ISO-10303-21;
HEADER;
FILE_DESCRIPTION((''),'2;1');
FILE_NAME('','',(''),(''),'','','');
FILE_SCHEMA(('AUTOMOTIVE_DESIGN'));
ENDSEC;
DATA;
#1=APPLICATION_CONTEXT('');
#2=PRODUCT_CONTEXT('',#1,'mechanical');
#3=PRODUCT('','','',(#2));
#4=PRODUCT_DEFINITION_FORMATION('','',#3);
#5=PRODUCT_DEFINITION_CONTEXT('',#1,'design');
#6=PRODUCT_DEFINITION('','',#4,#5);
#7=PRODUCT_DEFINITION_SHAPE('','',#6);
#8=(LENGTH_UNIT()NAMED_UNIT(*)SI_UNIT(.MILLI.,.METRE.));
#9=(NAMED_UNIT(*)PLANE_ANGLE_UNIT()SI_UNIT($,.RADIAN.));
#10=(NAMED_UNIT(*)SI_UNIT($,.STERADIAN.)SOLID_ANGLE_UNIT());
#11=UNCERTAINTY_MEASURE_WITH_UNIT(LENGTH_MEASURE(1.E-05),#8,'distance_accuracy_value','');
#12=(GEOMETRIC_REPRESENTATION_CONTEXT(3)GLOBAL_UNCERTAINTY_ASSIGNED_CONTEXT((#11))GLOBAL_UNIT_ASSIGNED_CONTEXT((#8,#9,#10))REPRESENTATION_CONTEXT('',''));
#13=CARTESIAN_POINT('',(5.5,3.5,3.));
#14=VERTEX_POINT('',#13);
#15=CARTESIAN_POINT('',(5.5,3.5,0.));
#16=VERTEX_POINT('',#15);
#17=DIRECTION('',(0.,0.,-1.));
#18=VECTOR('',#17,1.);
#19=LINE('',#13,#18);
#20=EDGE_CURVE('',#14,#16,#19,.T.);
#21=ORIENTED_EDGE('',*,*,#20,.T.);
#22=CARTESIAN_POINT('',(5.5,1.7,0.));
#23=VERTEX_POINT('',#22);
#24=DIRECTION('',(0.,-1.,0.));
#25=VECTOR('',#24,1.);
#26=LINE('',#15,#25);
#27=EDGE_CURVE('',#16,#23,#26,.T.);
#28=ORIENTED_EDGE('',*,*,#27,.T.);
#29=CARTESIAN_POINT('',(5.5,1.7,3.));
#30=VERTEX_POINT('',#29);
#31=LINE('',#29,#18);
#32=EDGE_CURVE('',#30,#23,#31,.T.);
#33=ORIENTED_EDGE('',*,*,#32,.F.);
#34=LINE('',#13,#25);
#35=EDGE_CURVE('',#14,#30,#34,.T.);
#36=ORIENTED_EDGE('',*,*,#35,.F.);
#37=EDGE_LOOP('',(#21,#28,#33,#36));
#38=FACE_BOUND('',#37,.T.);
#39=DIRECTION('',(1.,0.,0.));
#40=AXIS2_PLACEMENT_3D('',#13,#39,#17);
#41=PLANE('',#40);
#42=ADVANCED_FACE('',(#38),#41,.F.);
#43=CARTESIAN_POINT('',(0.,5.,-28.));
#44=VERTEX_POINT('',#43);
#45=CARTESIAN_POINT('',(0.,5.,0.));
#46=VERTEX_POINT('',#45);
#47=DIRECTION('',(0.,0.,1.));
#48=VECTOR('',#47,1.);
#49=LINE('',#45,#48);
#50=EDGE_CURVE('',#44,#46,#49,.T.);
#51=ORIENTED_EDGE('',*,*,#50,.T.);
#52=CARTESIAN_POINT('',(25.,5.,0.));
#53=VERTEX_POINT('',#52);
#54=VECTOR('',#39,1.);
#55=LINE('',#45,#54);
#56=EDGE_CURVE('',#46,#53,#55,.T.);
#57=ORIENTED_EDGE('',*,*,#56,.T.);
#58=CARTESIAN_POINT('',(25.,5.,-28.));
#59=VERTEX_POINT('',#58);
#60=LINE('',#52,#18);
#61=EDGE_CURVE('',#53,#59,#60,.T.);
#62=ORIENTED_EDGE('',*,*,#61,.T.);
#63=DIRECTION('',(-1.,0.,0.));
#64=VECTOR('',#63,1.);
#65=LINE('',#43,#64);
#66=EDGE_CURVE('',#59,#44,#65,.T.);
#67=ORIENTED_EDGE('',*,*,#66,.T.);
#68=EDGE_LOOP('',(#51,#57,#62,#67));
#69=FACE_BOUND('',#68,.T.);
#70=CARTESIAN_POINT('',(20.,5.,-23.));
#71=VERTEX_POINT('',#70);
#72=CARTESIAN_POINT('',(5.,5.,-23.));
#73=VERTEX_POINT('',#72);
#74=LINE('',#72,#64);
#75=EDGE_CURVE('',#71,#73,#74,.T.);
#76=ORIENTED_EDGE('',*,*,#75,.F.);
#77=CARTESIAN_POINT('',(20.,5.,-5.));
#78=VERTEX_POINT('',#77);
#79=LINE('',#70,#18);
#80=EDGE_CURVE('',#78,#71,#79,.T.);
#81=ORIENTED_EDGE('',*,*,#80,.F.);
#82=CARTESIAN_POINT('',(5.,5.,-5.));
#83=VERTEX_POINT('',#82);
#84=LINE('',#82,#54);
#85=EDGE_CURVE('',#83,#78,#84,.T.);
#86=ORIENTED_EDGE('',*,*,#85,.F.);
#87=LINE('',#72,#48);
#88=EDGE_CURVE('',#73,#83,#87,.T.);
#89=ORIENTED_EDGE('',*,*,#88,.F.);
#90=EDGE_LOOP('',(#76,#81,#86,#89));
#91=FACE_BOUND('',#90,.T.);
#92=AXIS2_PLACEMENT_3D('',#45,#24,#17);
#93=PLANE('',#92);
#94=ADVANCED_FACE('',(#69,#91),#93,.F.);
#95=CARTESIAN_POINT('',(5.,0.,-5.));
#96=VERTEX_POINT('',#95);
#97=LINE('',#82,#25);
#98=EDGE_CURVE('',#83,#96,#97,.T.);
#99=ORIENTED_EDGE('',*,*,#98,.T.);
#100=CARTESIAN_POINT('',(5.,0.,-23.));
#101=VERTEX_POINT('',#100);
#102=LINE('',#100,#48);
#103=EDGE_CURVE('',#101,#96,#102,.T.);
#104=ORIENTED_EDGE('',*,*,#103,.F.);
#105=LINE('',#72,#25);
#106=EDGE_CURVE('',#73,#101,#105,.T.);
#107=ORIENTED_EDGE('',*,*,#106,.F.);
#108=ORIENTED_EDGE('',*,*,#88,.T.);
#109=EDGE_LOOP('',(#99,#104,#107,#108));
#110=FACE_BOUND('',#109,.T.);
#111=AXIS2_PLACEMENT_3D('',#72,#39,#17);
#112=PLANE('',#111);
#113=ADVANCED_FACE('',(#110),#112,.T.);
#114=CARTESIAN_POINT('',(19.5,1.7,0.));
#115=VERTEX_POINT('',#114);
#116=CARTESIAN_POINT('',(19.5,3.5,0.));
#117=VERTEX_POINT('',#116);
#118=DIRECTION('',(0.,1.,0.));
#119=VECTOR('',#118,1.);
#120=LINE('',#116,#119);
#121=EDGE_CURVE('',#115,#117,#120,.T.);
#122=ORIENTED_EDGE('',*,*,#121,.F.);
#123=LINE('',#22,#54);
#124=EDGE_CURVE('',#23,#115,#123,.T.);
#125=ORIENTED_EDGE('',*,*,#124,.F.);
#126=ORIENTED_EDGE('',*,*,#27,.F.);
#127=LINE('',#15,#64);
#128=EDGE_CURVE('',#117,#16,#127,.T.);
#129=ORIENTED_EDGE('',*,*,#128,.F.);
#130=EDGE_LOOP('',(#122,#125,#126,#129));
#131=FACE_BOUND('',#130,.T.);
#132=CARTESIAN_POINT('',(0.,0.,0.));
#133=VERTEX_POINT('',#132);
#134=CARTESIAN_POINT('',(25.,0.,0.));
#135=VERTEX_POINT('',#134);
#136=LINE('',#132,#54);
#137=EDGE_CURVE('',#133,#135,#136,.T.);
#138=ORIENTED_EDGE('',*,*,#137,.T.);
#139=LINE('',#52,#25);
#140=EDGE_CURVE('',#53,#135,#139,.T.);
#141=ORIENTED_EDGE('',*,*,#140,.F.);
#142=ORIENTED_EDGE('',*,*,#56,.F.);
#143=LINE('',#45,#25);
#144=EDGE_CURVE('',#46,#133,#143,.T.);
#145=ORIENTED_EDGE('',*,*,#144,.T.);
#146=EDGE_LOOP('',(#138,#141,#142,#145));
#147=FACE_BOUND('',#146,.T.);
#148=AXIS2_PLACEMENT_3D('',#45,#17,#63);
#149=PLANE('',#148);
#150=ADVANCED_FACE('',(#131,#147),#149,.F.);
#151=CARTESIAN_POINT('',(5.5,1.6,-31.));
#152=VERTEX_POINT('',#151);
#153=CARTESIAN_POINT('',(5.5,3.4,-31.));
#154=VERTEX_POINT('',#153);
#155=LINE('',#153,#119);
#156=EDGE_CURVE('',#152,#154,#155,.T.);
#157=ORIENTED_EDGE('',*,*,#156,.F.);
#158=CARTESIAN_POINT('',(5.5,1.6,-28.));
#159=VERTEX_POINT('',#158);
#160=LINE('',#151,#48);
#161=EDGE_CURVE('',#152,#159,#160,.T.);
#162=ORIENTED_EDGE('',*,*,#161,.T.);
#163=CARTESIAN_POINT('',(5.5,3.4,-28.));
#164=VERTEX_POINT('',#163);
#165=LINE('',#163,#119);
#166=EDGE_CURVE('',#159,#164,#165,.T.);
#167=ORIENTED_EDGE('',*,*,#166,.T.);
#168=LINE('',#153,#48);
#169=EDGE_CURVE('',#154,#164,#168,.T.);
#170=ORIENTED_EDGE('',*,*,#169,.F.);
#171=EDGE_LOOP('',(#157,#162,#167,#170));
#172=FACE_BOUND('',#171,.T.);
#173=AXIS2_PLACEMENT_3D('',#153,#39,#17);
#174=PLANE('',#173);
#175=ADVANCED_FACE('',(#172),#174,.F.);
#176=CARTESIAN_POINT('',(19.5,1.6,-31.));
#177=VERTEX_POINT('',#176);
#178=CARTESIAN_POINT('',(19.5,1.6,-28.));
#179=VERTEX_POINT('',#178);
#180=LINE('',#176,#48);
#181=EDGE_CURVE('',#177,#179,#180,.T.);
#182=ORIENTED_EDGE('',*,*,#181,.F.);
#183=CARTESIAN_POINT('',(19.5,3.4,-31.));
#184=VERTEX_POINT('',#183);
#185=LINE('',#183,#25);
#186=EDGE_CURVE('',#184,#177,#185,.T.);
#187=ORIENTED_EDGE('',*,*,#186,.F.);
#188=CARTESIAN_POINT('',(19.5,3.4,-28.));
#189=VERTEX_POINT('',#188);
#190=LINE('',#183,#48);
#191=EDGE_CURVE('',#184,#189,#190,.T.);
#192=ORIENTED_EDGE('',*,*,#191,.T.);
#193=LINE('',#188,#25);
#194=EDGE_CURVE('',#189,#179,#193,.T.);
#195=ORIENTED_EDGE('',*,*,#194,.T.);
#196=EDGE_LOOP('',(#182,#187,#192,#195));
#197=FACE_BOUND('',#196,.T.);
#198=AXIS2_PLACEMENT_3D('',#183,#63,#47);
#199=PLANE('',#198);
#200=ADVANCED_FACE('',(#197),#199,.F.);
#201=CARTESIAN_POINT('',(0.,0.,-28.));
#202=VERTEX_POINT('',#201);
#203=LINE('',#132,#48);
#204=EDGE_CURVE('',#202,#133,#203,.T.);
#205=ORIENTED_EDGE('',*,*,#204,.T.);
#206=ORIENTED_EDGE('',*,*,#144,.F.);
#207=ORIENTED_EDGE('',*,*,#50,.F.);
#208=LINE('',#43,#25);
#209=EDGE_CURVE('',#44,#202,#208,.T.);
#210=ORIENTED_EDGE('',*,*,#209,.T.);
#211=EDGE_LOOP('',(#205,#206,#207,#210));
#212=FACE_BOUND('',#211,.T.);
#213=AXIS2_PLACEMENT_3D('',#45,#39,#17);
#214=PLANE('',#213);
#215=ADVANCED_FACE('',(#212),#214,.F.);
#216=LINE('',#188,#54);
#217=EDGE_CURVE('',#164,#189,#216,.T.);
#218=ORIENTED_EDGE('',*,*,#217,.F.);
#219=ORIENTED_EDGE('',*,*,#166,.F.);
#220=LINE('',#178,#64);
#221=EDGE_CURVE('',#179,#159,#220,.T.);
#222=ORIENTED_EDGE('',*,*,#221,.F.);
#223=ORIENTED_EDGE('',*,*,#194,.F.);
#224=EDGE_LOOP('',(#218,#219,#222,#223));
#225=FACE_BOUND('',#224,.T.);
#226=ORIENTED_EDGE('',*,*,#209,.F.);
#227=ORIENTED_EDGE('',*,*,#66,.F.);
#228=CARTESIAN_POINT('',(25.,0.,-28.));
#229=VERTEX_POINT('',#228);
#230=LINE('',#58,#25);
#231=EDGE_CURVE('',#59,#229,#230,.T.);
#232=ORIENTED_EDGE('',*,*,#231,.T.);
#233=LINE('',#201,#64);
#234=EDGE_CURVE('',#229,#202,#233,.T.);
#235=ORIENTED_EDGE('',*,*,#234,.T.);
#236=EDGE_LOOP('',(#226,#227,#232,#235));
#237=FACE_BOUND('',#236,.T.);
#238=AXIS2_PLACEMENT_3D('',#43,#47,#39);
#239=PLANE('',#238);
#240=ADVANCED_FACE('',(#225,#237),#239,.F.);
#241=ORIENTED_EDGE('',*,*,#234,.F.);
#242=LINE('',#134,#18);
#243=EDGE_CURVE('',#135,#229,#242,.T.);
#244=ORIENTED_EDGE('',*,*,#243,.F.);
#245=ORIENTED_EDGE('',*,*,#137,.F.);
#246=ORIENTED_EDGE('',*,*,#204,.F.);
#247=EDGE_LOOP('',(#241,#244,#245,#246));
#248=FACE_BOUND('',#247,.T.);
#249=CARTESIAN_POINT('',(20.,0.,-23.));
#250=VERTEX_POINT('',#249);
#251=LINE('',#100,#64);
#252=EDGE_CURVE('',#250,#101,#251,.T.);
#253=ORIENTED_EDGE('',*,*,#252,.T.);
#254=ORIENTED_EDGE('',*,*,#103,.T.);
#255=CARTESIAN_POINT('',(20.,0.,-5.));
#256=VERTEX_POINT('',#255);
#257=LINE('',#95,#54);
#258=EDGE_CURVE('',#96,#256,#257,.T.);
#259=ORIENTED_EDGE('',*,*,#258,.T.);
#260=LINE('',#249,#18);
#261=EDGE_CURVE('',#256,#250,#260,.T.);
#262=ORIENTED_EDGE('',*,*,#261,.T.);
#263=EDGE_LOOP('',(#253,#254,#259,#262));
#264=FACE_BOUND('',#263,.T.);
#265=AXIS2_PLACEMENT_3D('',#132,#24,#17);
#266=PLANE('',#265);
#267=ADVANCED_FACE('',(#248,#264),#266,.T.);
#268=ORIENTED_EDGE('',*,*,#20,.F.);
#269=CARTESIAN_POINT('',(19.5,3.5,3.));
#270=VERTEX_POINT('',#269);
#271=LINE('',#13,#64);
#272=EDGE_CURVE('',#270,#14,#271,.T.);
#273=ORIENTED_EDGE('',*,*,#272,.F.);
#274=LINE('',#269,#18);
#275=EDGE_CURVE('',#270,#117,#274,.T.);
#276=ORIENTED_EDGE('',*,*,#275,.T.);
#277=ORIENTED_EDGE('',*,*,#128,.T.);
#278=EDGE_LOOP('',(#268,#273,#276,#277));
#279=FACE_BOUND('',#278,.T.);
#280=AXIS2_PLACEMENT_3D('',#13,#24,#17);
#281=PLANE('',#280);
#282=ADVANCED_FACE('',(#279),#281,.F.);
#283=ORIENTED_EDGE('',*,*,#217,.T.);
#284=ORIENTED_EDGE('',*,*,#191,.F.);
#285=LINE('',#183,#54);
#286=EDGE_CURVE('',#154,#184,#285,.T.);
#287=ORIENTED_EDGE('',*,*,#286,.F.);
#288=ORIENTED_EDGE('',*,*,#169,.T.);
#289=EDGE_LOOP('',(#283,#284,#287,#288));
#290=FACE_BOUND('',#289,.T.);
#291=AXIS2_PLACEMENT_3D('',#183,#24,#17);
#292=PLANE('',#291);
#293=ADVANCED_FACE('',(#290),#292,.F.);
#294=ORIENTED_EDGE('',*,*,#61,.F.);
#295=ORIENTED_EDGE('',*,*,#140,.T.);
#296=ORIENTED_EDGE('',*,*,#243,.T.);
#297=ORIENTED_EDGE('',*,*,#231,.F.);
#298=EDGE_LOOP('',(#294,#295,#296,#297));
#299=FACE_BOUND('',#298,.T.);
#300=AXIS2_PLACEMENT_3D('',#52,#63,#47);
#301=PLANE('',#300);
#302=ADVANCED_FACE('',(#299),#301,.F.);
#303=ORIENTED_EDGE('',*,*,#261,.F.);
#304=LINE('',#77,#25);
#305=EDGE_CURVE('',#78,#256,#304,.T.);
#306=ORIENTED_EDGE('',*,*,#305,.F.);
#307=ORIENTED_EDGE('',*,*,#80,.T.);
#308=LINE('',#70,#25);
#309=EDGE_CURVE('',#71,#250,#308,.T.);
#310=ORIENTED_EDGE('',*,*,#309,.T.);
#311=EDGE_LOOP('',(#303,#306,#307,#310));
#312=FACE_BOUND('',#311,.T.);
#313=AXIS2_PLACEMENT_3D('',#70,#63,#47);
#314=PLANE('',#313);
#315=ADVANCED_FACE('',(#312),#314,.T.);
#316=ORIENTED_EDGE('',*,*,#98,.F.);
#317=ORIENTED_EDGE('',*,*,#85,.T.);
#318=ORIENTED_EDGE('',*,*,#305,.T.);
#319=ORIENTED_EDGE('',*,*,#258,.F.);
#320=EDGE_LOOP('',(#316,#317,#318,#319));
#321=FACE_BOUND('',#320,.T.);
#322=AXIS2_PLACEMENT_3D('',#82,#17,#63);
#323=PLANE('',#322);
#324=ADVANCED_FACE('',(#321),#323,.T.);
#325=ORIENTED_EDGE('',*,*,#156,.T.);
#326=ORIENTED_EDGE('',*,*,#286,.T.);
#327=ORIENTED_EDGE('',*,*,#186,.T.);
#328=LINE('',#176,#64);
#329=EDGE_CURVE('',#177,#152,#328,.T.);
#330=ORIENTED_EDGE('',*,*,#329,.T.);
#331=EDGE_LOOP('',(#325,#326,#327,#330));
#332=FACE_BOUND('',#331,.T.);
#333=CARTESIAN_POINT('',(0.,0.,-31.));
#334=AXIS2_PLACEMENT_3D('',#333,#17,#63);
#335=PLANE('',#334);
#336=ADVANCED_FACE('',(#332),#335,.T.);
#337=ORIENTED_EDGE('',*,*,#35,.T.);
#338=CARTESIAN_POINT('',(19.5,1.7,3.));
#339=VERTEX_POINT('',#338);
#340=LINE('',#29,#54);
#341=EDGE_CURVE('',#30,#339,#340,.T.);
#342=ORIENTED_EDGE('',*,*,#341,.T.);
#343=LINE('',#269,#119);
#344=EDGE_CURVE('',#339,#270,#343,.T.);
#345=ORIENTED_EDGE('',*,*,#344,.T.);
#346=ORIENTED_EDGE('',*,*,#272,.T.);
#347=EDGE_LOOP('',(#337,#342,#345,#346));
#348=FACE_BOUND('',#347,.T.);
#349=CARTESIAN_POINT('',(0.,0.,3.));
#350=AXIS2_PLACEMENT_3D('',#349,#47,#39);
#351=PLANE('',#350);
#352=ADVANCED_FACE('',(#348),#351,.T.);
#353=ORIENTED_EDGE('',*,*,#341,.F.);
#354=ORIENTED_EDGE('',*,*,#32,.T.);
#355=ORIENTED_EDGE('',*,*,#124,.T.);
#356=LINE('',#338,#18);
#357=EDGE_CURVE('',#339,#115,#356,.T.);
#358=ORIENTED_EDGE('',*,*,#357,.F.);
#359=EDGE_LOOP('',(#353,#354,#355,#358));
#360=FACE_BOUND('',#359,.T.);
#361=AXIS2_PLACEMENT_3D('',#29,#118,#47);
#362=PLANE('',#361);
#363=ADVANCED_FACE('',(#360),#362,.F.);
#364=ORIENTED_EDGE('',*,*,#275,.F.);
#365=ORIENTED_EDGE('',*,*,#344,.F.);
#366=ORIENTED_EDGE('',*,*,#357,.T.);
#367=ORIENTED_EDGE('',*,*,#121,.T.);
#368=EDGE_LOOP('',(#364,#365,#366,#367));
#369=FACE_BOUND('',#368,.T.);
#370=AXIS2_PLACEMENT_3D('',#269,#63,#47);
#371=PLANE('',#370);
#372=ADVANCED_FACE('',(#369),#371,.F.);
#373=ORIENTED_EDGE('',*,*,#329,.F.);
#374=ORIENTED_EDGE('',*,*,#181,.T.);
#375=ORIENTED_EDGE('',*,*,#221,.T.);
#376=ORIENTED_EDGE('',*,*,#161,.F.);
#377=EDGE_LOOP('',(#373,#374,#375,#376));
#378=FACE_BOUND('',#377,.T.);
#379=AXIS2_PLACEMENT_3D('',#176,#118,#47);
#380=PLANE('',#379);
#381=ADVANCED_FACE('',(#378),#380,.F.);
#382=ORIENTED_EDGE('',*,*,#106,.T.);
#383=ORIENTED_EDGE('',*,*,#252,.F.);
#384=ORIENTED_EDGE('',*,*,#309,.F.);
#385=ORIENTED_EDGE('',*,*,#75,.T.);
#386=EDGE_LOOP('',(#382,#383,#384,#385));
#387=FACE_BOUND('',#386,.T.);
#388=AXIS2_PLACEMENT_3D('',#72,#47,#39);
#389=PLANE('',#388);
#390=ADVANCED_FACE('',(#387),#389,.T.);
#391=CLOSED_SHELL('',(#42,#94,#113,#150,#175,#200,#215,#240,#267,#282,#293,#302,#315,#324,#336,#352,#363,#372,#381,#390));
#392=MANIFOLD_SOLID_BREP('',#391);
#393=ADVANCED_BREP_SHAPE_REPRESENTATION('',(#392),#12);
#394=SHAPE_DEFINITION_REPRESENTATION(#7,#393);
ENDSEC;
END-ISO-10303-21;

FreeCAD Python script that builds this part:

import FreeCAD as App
import Part
import Sketcher

doc = App.newDocument("Part")
body = doc.addObject("PartDesign::Body", "Body")

sketch1 = body.newObject("Sketcher::SketchObject", "Sketch")
sketch1.AttachmentSupport = (doc.getObject("XZ_Plane"), [""])
sketch1.MapMode = "FlatFace"
sketch1.addGeometry([
    Part.LineSegment(App.Vector(0, -28, 0), App.Vector(0, 0, 0)),
    Part.LineSegment(App.Vector(0, 0, 0), App.Vector(25, 0, 0)),
    Part.LineSegment(App.Vector(25, 0, 0), App.Vector(25, -28, 0)),
    Part.LineSegment(App.Vector(25, -28, 0), App.Vector(0, -28, 0)),
    Part.LineSegment(App.Vector(20, -5, 0), App.Vector(5, -5, 0)),
    Part.LineSegment(App.Vector(5, -5, 0), App.Vector(5, -23, 0)),
    Part.LineSegment(App.Vector(5, -23, 0), App.Vector(20, -23, 0)),
    Part.LineSegment(App.Vector(20, -23, 0), App.Vector(20, -5, 0)),
], False)
sketch1.addConstraint([
    Sketcher.Constraint("Coincident", 0, 2, 1, 1),
    Sketcher.Constraint("Coincident", 1, 2, 2, 1),
    Sketcher.Constraint("Coincident", 2, 2, 3, 1),
    Sketcher.Constraint("Coincident", 3, 2, 0, 1),
    Sketcher.Constraint("Coincident", 4, 2, 5, 1),
    Sketcher.Constraint("Coincident", 5, 2, 6, 1),
    Sketcher.Constraint("Coincident", 6, 2, 7, 1),
    Sketcher.Constraint("Coincident", 7, 2, 4, 1),
    Sketcher.Constraint("Vertical", 0),
    Sketcher.Constraint("Horizontal", 1),
    Sketcher.Constraint("Vertical", 2),
    Sketcher.Constraint("Horizontal", 3),
    Sketcher.Constraint("Horizontal", 4),
    Sketcher.Constraint("Vertical", 5),
    Sketcher.Constraint("Horizontal", 6),
    Sketcher.Constraint("Vertical", 7),
    Sketcher.Constraint("Coincident", 0, 2, -1, 1),
    Sketcher.Constraint("DistanceX", 1, 1, 1, 2, 25.0),
    Sketcher.Constraint("DistanceX", 4, 2, 4, 1, 15.0),
    Sketcher.Constraint("DistanceY", 0, 1, 0, 2, 28.0),
    Sketcher.Constraint("DistanceY", 5, 2, 5, 1, 18.0),
    Sketcher.Constraint("DistanceX", -1, 1, 4, 2, 5.0),
    Sketcher.Constraint("DistanceY", 4, 2, -1, 1, 5.0),
])
pad1 = body.newObject("PartDesign::Pad", "Pad")
pad1.Profile = sketch1
pad1.Length = 5
pad1.Reversed = True

sketch2 = body.newObject("Sketcher::SketchObject", "Sketch001")
sketch2.AttachmentSupport = (doc.getObject("XY_Plane"), [""])
sketch2.MapMode = "FlatFace"
sketch2.addGeometry([
    Part.LineSegment(App.Vector(5.5, 3.5, 0), App.Vector(5.5, 1.7, 0)),
    Part.LineSegment(App.Vector(5.5, 1.7, 0), App.Vector(19.5, 1.7, 0)),
    Part.LineSegment(App.Vector(19.5, 1.7, 0), App.Vector(19.5, 3.5, 0)),
    Part.LineSegment(App.Vector(19.5, 3.5, 0), App.Vector(5.5, 3.5, 0)),
], False)
sketch2.addConstraint([
    Sketcher.Constraint("Coincident", 0, 2, 1, 1),
    Sketcher.Constraint("Coincident", 1, 2, 2, 1),
    Sketcher.Constraint("Coincident", 2, 2, 3, 1),
    Sketcher.Constraint("Coincident", 3, 2, 0, 1),
    Sketcher.Constraint("Vertical", 0),
    Sketcher.Constraint("Horizontal", 1),
    Sketcher.Constraint("Vertical", 2),
    Sketcher.Constraint("Horizontal", 3),
    Sketcher.Constraint("DistanceX", 1, 1, 1, 2, 14.0),
    Sketcher.Constraint("DistanceY", 0, 2, 0, 1, 1.8),
    Sketcher.Constraint("DistanceX", -1, 1, 0, 2, 5.5),
    Sketcher.Constraint("DistanceY", -1, 1, 0, 2, 1.7),
])
pad2 = body.newObject("PartDesign::Pad", "Pad001")
pad2.Profile = sketch2
pad2.Length = 3

sketch3 = body.newObject("Sketcher::SketchObject", "Sketch002")
sketch3.AttachmentSupport = (doc.getObject("XY_Plane"), [""])
sketch3.MapMode = "FlatFace"
sketch3.AttachmentOffset = App.Placement(App.Vector(0, 0, -28), App.Rotation())
sketch3.addGeometry([
    Part.LineSegment(App.Vector(19.5, 3.4, 0), App.Vector(19.5, 1.6, 0)),
    Part.LineSegment(App.Vector(19.5, 1.6, 0), App.Vector(5.5, 1.6, 0)),
    Part.LineSegment(App.Vector(5.5, 1.6, 0), App.Vector(5.5, 3.4, 0)),
    Part.LineSegment(App.Vector(5.5, 3.4, 0), App.Vector(19.5, 3.4, 0)),
], False)
sketch3.addConstraint([
    Sketcher.Constraint("Coincident", 0, 2, 1, 1),
    Sketcher.Constraint("Coincident", 1, 2, 2, 1),
    Sketcher.Constraint("Coincident", 2, 2, 3, 1),
    Sketcher.Constraint("Coincident", 3, 2, 0, 1),
    Sketcher.Constraint("Vertical", 0),
    Sketcher.Constraint("Horizontal", 1),
    Sketcher.Constraint("Vertical", 2),
    Sketcher.Constraint("Horizontal", 3),
    Sketcher.Constraint("DistanceX", 1, 2, 1, 1, 14.0),
    Sketcher.Constraint("DistanceY", 0, 2, 0, 1, 1.8),
    Sketcher.Constraint("DistanceX", -1, 1, 0, 2, 19.5),
    Sketcher.Constraint("DistanceY", -1, 1, 0, 2, 1.6),
])
pad3 = body.newObject("PartDesign::Pad", "Pad002")
pad3.Profile = sketch3
pad3.Length = 3
pad3.Reversed = True

doc.recompute()
